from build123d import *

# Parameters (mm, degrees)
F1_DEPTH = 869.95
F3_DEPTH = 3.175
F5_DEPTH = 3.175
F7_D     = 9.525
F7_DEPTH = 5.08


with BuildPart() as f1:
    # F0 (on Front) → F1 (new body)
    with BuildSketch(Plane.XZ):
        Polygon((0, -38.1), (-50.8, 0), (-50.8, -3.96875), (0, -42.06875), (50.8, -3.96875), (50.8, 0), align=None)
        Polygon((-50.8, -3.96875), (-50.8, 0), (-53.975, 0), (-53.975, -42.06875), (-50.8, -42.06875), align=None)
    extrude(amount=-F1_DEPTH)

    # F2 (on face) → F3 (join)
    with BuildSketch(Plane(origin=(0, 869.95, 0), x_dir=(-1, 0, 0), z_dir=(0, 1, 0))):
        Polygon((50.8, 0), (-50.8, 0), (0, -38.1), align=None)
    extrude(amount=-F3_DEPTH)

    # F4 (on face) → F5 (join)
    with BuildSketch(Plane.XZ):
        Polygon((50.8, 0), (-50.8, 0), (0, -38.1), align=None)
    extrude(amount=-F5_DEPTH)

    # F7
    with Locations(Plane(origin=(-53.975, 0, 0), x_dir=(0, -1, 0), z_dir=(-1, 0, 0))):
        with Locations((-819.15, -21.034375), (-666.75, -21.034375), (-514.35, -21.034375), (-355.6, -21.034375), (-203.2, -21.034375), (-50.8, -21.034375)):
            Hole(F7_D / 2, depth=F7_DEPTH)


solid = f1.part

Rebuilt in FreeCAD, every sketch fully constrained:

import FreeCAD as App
import Part
import Sketcher
Q = App.Units.Quantity

doc = App.newDocument("Part")
params = doc.addObject("Spreadsheet::Sheet", "Params")
for row, (alias, value) in enumerate([
    ("sketch1_height", "1.5 in"),
    ("sketch1_width", "0.125 in"),
    ("sketch1_height2", "1.65625 in"),
    ("pad1_length", "34.25 in"),
    ("sketch2_width", "4 in"),
    ("sketch2_length", "2.5 in"),
    ("pad2_length", "0.125 in"),
    ("sketch3_width", "4 in"),
    ("sketch3_length", "2.5 in"),
    ("pad3_length", "0.125 in"),
    ("sketch4_diameter", "0.375 in"),
    ("hole_diameter", "0.375 in"),
    ("hole_depth", "0.2 in"),
], start=1):
    params.set(f"A{row}", alias)
    params.set(f"B{row}", "=" + value)
    params.setAlias(f"B{row}", alias)

body = doc.addObject("PartDesign::Body", "Body")

sketch1 = body.newObject("Sketcher::SketchObject", "Sketch")
sketch1.AttachmentSupport = (doc.getObject("XZ_Plane"), [""])
sketch1.MapMode = "FlatFace"
sketch1.addGeometry(Part.LineSegment(App.Vector(0, -38.1, 0), App.Vector(-50.8, 0, 0)), False)
sketch1.addGeometry(Part.LineSegment(App.Vector(-50.8, 0, 0), App.Vector(-54, 0, 0)), False)
sketch1.addGeometry(Part.LineSegment(App.Vector(-54, 0, 0), App.Vector(-54, -42.1, 0)), False)
sketch1.addGeometry(Part.LineSegment(App.Vector(-54, -42.1, 0), App.Vector(-50.8, -42.1, 0)), False)
sketch1.addGeometry(Part.LineSegment(App.Vector(-50.8, -42.1, 0), App.Vector(-50.8, -4, 0)), False)
sketch1.addGeometry(Part.LineSegment(App.Vector(-50.8, -4, 0), App.Vector(0, -42.1, 0)), False)
sketch1.addGeometry(Part.LineSegment(App.Vector(0, -42.1, 0), App.Vector(50.8, -4, 0)), False)
sketch1.addGeometry(Part.LineSegment(App.Vector(50.8, -4, 0), App.Vector(50.8, 0, 0)), False)
sketch1.addGeometry(Part.LineSegment(App.Vector(50.8, 0, 0), App.Vector(0, -38.1, 0)), False)
sketch1.addConstraint(Sketcher.Constraint("Coincident", 0, 2, 1, 1))
sketch1.addConstraint(Sketcher.Constraint("Coincident", 1, 2, 2, 1))
sketch1.addConstraint(Sketcher.Constraint("Coincident", 2, 2, 3, 1))
sketch1.addConstraint(Sketcher.Constraint("Coincident", 3, 2, 4, 1))
sketch1.addConstraint(Sketcher.Constraint("Coincident", 4, 2, 5, 1))
sketch1.addConstraint(Sketcher.Constraint("Coincident", 5, 2, 6, 1))
sketch1.addConstraint(Sketcher.Constraint("Coincident", 6, 2, 7, 1))
sketch1.addConstraint(Sketcher.Constraint("Coincident", 7, 2, 8, 1))
sketch1.addConstraint(Sketcher.Constraint("Coincident", 8, 2, 0, 1))
sketch1.addConstraint(Sketcher.Constraint("Horizontal", 1))
sketch1.addConstraint(Sketcher.Constraint("Vertical", 2))
sketch1.addConstraint(Sketcher.Constraint("Horizontal", 3))
sketch1.addConstraint(Sketcher.Constraint("Vertical", 4))
sketch1.addConstraint(Sketcher.Constraint("Vertical", 7))
sketch1.addConstraint(Sketcher.Constraint("Symmetric", 0, 2, 7, 2, -1, 1))
sketch1.addConstraint(Sketcher.Constraint("Symmetric", 4, 2, 6, 2, -2))
sketch1.addConstraint(Sketcher.Constraint("PointOnObject", 0, 2, -1))
sketch1.addConstraint(Sketcher.Constraint("PointOnObject", 5, 2, -2))
sketch1.addConstraint(Sketcher.Constraint("PointOnObject", 8, 2, -2))
sketch1.addConstraint(Sketcher.Constraint("Parallel", 0, 5))
sketch1.addConstraint(Sketcher.Constraint("Horizontal", 3, 2, 5, 2))
sketch1.addConstraint(Sketcher.Constraint("DistanceY", 4, 1, 4, 2, Q("1.5 in")))
sketch1.addConstraint(Sketcher.Constraint("DistanceX", 0, 2, -1, 1, Q("2 in")))
sketch1.addConstraint(Sketcher.Constraint("DistanceX", 1, 2, 1, 1, Q("0.125 in")))
sketch1.addConstraint(Sketcher.Constraint("DistanceY", 2, 2, 2, 1, Q("1.65625 in")))
sketch1.setExpression("Constraints[21]", "Params.sketch1_height")
sketch1.setExpression("Constraints[23]", "Params.sketch1_width")
sketch1.setExpression("Constraints[24]", "Params.sketch1_height2")
pad1 = body.newObject("PartDesign::Pad", "Pad")
pad1.Profile = sketch1
pad1.setExpression("Length", "Params.pad1_length")
pad1.Reversed = True

sketch2 = body.newObject("Sketcher::SketchObject", "Sketch001")
sketch2.AttachmentSupport = (doc.getObject("XZ_Plane"), [""])
sketch2.MapMode = "FlatFace"
sketch2.AttachmentOffset = App.Placement(App.Vector(0, 0, -34.25 * 25.4), App.Rotation())
sketch2.addGeometry(Part.LineSegment(App.Vector(-51, 0, 0), App.Vector(51, 0, 0)), False)
sketch2.addGeometry(Part.LineSegment(App.Vector(51, 0, 0), App.Vector(0, -38, 0)), False)
sketch2.addGeometry(Part.LineSegment(App.Vector(0, -38, 0), App.Vector(-51, 0, 0)), False)
sketch2.addConstraint(Sketcher.Constraint("Coincident", 0, 2, 1, 1))
sketch2.addConstraint(Sketcher.Constraint("Coincident", 1, 2, 2, 1))
sketch2.addConstraint(Sketcher.Constraint("Coincident", 2, 2, 0, 1))
sketch2.addConstraint(Sketcher.Constraint("Horizontal", 0))
sketch2.addConstraint(Sketcher.Constraint("Symmetric", 0, 2, 2, 2, -1, 1))
sketch2.addConstraint(Sketcher.Constraint("PointOnObject", 1, 2, -2))
sketch2.addConstraint(Sketcher.Constraint("DistanceX", 0, 1, 0, 2, Q("4 in")))
sketch2.addConstraint(Sketcher.Constraint("Distance", 1, Q("2.5 in")))
sketch2.setExpression("Constraints[6]", "Params.sketch2_width")
sketch2.setExpression("Constraints[7]", "Params.sketch2_length")
pad2 = body.newObject("PartDesign::Pad", "Pad001")
pad2.Profile = sketch2
pad2.setExpression("Length", "Params.pad2_length")

sketch3 = body.newObject("Sketcher::SketchObject", "Sketch002")
sketch3.AttachmentSupport = (doc.getObject("XZ_Plane"), [""])
sketch3.MapMode = "FlatFace"
sketch3.addGeometry(Part.LineSegment(App.Vector(51, 0, 0), App.Vector(-51, 0, 0)), False)
sketch3.addGeometry(Part.LineSegment(App.Vector(-51, 0, 0), App.Vector(0, -38, 0)), False)
sketch3.addGeometry(Part.LineSegment(App.Vector(0, -38, 0), App.Vector(51, 0, 0)), False)
sketch3.addConstraint(Sketcher.Constraint("Coincident", 0, 2, 1, 1))
sketch3.addConstraint(Sketcher.Constraint("Coincident", 1, 2, 2, 1))
sketch3.addConstraint(Sketcher.Constraint("Coincident", 2, 2, 0, 1))
sketch3.addConstraint(Sketcher.Constraint("Horizontal", 0))
sketch3.addConstraint(Sketcher.Constraint("Symmetric", 0, 2, 2, 2, -1, 1))
sketch3.addConstraint(Sketcher.Constraint("PointOnObject", 1, 2, -2))
sketch3.addConstraint(Sketcher.Constraint("DistanceX", 0, 2, 0, 1, Q("4 in")))
sketch3.addConstraint(Sketcher.Constraint("Distance", 1, Q("2.5 in")))
sketch3.setExpression("Constraints[6]", "Params.sketch3_width")
sketch3.setExpression("Constraints[7]", "Params.sketch3_length")
pad3 = body.newObject("PartDesign::Pad", "Pad002")
pad3.Profile = sketch3
pad3.setExpression("Length", "Params.pad3_length")
pad3.Reversed = True

sketch4 = body.newObject("Sketcher::SketchObject", "Sketch003")
sketch4.AttachmentSupport = (doc.getObject("YZ_Plane"), [""])
sketch4.MapMode = "FlatFace"
sketch4.AttachmentOffset = App.Placement(App.Vector(0, 0, -2.125 * 25.4), App.Rotation())
sketch4.addGeometry(Part.Circle(App.Vector(819.1, -21, 0), App.Vector(0, 0, 1), 4.8), False)
sketch4.addGeometry(Part.Circle(App.Vector(666.8, -21, 0), App.Vector(0, 0, 1), 4.8), False)
sketch4.addGeometry(Part.Circle(App.Vector(514.4, -21, 0), App.Vector(0, 0, 1), 4.8), False)
sketch4.addGeometry(Part.Circle(App.Vector(355.6, -21, 0), App.Vector(0, 0, 1), 4.8), False)
sketch4.addGeometry(Part.Circle(App.Vector(203.2, -21, 0), App.Vector(0, 0, 1), 4.8), False)
sketch4.addGeometry(Part.Circle(App.Vector(50.8, -21, 0), App.Vector(0, 0, 1), 4.8), False)
sketch4.addConstraint(Sketcher.Constraint("Equal", 0, 1))
sketch4.addConstraint(Sketcher.Constraint("Equal", 1, 2))
sketch4.addConstraint(Sketcher.Constraint("Equal", 2, 3))
sketch4.addConstraint(Sketcher.Constraint("Equal", 3, 4))
sketch4.addConstraint(Sketcher.Constraint("Equal", 4, 5))
sketch4.addConstraint(Sketcher.Constraint("Horizontal", 0, 3, 1, 3))
sketch4.addConstraint(Sketcher.Constraint("Horizontal", 1, 3, 2, 3))
sketch4.addConstraint(Sketcher.Constraint("Horizontal", 2, 3, 3, 3))
sketch4.addConstraint(Sketcher.Constraint("Horizontal", 3, 3, 4, 3))
sketch4.addConstraint(Sketcher.Constraint("Horizontal", 4, 3, 5, 3))
sketch4.addConstraint(Sketcher.Constraint("Diameter", 0, Q("0.375 in")))
sketch4.addConstraint(Sketcher.Constraint("DistanceX", -1, 1, 3, 3, Q("14 in")))
sketch4.addConstraint(Sketcher.Constraint("DistanceX", -1, 1, 4, 3, Q("8 in")))
sketch4.addConstraint(Sketcher.Constraint("DistanceX", -1, 1, 5, 3, Q("2 in")))
sketch4.addConstraint(Sketcher.Constraint("DistanceX", 1, 3, 0, 3, Q("6 in")))
sketch4.addConstraint(Sketcher.Constraint("DistanceX", 2, 3, 1, 3, Q("6 in")))
sketch4.addConstraint(Sketcher.Constraint("DistanceX", -1, 1, 0, 3, Q("32.25 in")))
sketch4.addConstraint(Sketcher.Constraint("DistanceY", 0, 3, -1, 1, Q("0.828125 in")))
sketch4.setExpression("Constraints[10]", "Params.sketch4_diameter")
doc.recompute()
hole = body.newObject("PartDesign::Hole", "Hole")
hole.Profile = sketch4
hole.ThreadType = "None"
hole.setExpression("Diameter", "Params.hole_diameter")
hole.DepthType = "Dimension"
hole.setExpression("Depth", "Params.hole_depth")
hole.DrillPoint = "Flat"
hole.Reversed = True

doc.recompute()
